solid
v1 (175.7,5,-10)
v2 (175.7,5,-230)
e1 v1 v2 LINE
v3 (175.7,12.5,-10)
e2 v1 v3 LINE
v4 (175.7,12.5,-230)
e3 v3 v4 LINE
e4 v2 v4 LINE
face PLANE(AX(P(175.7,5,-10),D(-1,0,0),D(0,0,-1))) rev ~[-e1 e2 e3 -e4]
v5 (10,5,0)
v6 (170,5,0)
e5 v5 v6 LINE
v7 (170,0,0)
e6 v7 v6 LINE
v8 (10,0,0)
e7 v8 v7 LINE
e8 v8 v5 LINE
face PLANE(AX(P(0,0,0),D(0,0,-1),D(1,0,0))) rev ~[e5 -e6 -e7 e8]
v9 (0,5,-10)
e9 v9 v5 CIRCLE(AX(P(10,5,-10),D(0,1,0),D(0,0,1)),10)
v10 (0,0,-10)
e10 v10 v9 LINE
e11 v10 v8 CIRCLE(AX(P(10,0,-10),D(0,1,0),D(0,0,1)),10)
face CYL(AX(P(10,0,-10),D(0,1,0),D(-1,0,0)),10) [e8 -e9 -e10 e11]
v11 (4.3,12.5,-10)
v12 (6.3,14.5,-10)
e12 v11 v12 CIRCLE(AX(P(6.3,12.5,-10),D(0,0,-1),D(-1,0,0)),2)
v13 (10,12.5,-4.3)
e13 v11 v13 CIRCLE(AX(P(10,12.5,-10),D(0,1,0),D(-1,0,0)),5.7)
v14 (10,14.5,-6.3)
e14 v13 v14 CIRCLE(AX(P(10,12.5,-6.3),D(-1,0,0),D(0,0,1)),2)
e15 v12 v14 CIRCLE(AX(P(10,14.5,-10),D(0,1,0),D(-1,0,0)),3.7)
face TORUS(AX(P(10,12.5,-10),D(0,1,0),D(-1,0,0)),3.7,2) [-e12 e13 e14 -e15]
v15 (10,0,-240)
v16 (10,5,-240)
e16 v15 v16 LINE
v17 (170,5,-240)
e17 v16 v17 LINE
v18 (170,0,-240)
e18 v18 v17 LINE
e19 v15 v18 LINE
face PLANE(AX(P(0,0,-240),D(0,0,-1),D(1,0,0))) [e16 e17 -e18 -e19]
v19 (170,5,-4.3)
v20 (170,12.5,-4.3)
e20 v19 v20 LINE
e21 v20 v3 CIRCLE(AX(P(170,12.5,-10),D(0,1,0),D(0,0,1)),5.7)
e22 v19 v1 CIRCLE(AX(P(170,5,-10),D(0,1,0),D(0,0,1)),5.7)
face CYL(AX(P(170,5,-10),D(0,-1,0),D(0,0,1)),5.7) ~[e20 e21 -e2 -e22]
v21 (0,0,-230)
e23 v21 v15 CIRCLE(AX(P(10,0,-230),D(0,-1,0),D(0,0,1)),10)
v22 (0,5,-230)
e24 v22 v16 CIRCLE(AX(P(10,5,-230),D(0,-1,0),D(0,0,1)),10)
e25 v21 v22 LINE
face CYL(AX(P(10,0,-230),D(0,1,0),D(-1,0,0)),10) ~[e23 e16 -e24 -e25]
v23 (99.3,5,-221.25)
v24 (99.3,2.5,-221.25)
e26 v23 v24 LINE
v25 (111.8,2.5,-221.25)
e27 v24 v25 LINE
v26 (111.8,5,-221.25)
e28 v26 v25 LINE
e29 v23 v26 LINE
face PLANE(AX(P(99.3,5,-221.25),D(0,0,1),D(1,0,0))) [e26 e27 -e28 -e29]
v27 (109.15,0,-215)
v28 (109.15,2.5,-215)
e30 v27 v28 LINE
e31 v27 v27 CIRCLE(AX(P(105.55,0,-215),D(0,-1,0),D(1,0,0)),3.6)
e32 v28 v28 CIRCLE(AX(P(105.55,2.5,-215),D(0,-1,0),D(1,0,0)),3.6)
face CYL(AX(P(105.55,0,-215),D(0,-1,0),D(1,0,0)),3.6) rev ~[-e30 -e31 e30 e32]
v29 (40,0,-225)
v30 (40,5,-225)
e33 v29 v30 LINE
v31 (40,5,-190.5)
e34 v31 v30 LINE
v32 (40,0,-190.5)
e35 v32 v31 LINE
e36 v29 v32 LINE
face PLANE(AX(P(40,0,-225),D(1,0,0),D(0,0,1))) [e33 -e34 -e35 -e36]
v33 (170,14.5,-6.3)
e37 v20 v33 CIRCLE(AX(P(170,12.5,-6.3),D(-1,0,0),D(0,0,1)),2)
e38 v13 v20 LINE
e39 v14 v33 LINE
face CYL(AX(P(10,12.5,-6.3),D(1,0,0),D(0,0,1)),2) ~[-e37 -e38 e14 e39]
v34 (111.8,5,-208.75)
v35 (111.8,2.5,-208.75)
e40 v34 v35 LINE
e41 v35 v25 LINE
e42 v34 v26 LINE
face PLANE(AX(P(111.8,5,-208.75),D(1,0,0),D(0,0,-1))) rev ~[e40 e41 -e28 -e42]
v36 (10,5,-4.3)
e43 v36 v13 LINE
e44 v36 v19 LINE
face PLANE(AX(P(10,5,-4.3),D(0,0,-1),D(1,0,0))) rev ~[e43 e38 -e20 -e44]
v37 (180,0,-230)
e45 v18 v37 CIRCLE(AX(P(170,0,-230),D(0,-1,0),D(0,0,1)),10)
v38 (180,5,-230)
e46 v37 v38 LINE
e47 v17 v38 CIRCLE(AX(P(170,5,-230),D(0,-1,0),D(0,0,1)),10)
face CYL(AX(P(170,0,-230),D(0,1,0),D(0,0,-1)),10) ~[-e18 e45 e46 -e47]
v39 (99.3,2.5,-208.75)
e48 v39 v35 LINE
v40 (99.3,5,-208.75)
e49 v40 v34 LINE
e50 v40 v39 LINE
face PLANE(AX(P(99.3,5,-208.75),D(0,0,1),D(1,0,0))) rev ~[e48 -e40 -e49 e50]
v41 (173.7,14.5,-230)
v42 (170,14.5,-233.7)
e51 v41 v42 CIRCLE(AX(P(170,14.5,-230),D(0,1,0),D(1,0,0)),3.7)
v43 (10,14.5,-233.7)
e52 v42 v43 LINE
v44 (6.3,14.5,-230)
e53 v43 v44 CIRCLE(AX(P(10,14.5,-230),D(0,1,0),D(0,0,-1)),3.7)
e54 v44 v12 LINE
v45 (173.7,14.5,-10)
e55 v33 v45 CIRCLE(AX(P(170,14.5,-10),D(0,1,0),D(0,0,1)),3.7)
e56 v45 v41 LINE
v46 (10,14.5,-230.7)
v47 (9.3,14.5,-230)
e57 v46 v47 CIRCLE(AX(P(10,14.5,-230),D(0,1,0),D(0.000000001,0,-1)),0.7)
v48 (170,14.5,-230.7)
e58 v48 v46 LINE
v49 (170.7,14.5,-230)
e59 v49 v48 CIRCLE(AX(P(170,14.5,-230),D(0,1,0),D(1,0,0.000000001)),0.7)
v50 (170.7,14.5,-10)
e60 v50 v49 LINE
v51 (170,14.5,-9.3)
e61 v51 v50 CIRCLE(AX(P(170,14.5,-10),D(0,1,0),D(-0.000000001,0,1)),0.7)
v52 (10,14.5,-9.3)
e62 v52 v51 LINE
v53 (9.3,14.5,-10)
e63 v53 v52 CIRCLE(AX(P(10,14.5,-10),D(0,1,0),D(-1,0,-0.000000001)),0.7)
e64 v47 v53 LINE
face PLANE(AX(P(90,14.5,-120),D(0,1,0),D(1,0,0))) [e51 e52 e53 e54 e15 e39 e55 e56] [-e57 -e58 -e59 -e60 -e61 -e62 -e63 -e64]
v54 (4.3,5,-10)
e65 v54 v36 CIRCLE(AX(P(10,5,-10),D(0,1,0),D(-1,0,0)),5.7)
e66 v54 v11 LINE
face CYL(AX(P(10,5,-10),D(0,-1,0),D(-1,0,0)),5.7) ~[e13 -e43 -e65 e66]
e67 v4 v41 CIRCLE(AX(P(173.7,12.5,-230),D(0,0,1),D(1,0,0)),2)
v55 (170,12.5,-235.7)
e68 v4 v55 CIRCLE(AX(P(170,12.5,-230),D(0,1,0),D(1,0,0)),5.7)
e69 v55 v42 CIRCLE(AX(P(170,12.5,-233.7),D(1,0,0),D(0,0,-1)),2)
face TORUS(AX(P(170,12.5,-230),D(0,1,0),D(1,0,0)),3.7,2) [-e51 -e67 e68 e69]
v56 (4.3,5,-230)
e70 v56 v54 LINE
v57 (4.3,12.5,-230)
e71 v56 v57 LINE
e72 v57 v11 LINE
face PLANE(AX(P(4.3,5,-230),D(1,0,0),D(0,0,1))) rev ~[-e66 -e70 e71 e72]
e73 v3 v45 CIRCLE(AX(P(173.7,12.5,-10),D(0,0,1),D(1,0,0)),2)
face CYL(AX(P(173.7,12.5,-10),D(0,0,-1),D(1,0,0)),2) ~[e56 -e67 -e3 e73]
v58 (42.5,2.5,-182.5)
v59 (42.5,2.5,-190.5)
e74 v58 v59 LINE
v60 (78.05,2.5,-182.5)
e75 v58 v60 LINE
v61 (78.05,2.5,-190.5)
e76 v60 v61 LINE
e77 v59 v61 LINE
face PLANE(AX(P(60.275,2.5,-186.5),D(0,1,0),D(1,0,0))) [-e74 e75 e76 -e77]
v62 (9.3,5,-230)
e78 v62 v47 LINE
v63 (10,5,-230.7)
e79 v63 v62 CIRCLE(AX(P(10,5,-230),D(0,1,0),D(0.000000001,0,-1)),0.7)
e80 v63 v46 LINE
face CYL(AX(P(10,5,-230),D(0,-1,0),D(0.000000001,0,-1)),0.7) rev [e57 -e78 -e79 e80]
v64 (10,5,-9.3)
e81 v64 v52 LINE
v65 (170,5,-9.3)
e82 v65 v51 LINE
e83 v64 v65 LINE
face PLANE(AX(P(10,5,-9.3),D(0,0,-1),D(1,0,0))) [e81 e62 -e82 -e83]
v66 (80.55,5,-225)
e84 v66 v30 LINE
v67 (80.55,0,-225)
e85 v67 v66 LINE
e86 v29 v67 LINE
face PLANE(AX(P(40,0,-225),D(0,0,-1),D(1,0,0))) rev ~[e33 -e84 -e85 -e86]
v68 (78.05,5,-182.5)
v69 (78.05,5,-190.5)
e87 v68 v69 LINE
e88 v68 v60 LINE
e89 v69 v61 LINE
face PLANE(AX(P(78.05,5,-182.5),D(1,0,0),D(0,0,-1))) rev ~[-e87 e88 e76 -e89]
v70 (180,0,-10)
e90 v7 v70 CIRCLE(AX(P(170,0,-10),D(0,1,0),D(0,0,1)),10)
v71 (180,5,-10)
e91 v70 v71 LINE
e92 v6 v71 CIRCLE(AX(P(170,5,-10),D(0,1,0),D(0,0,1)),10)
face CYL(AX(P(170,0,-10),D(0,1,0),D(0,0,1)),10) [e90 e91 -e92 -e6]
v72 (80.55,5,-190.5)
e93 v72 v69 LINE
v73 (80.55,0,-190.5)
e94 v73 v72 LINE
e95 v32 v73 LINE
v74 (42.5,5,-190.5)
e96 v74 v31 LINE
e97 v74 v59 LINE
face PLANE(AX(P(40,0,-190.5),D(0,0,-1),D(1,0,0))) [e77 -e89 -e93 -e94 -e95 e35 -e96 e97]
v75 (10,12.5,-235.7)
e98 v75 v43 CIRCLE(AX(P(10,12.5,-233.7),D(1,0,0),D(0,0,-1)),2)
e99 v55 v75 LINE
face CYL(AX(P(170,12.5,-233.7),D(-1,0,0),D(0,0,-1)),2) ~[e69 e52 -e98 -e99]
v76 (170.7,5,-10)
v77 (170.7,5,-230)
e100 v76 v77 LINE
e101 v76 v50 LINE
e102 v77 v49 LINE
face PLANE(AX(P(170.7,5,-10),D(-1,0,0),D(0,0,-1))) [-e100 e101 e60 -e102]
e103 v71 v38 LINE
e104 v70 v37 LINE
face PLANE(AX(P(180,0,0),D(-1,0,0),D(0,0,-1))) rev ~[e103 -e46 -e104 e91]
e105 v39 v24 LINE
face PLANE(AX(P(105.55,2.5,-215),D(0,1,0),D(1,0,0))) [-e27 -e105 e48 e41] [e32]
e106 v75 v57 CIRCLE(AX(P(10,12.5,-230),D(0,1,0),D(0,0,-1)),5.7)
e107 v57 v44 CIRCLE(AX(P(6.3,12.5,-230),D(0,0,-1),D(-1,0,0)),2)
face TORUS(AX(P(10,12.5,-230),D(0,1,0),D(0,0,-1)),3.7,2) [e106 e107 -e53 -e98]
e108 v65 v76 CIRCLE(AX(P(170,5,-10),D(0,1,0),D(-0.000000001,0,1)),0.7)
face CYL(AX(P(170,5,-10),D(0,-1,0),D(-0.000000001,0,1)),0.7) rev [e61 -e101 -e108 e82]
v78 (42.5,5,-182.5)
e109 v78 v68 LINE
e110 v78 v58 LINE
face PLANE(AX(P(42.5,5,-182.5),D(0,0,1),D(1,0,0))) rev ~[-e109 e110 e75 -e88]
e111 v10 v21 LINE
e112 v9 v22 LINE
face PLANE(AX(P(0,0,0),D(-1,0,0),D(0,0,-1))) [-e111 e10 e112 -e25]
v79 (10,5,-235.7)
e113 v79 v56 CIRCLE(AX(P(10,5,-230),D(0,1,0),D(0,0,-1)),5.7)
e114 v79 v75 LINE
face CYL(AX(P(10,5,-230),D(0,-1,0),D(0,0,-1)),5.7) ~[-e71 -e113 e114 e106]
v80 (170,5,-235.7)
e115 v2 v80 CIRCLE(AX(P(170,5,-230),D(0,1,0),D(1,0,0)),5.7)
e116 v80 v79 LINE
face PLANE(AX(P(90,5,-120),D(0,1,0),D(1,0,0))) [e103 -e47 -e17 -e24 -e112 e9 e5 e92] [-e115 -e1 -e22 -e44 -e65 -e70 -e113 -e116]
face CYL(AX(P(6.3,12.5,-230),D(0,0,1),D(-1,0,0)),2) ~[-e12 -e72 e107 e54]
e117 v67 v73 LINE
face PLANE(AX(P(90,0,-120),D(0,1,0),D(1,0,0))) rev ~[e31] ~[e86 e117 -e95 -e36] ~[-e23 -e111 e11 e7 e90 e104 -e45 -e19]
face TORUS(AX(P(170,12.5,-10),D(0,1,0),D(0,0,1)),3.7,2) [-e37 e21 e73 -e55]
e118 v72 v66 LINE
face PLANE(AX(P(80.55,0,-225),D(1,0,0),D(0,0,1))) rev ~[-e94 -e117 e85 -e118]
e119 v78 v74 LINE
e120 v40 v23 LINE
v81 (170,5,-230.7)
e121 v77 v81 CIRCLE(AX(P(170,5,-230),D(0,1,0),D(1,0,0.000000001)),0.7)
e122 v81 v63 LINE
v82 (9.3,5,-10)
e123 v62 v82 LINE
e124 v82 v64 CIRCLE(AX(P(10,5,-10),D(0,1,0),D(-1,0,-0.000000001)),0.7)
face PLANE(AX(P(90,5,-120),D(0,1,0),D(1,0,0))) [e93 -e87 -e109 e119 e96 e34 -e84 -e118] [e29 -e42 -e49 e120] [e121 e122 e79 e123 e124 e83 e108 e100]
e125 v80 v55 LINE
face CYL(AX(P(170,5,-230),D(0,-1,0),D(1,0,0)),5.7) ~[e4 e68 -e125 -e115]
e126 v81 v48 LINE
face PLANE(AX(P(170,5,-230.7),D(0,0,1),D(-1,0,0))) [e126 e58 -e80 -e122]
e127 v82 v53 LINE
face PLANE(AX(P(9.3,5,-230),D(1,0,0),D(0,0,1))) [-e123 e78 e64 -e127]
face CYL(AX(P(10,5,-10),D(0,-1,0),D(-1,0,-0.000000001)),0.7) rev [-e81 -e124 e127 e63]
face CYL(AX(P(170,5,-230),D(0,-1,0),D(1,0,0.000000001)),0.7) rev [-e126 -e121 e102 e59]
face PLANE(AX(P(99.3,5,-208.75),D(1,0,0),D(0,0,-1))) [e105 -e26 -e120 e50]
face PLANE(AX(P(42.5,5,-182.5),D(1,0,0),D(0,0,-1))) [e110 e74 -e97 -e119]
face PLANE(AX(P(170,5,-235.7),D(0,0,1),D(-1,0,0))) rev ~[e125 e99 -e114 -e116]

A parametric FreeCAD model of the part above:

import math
import FreeCAD as App
import Part
import Sketcher
from FreeCAD import Vector
Q = App.Units.Quantity


def edges_at(feature, points):
    """Names of the edges that pass closest to the given points."""
    edges = feature.Shape.Edges
    near = lambda p: min(range(len(edges)), key=lambda i: edges[i].distToShape(Part.Vertex(*p))[0])
    return sorted({f"Edge{near(p) + 1}" for p in points})


def add_polygon(sketch, points):
    """Adds a closed chain of lines whose ends are joined by coincident constraints."""
    first, n = sketch.GeometryCount, len(points)
    for a, b in zip(points, points[1:] + points[:1]):
        sketch.addGeometry(Part.LineSegment(App.Vector(*a, 0), App.Vector(*b, 0)), False)
    for i in range(n):
        sketch.addConstraint(Sketcher.Constraint("Coincident", first + i, 2, first + (i + 1) % n, 1))

doc = App.newDocument("Part")
params = doc.addObject("Spreadsheet::Sheet", "Params")
for row, (alias, value) in enumerate([
    ("sketch1_width", "180 mm"),
    ("sketch1_height", "240 mm"),
    ("pad1_length", "5 mm"),
    ("sketch2_diameter", "7.2 mm"),
    ("sketch2_height", "34.5 mm"),
    ("sketch2_width", "40.55 mm"),
    ("sketch3_width", "12.5 mm"),
    ("pocket2_length", "2.5 mm"),
    ("sketch4_height", "8 mm"),
    ("sketch4_width", "35.55 mm"),
    ("pocket3_length", "2.5 mm"),
    ("fillet_radius", "10 mm"),
    ("sketch5_radius", "5.7 mm"),
    ("sketch5_radius2", "0.7 mm"),
    ("sketch5_width", "160 mm"),
    ("sketch5_height", "220 mm"),
    ("pad2_length", "9.5 mm"),
    ("fillet2_radius", "2 mm"),
], start=1):
    params.set(f"A{row}", alias)
    params.set(f"B{row}", "=" + value)
    params.setAlias(f"B{row}", alias)

body = doc.addObject("PartDesign::Body", "Body")

sketch1 = body.newObject("Sketcher::SketchObject", "Sketch")
sketch1.AttachmentSupport = (doc.getObject("XZ_Plane"), [""])
sketch1.MapMode = "FlatFace"
add_polygon(sketch1, [(0, -240), (0, 0), (180, 0), (180, -240)])
sketch1.addConstraint([
    Sketcher.Constraint("Vertical", 0),
    Sketcher.Constraint("Horizontal", 1),
    Sketcher.Constraint("Vertical", 2),
    Sketcher.Constraint("Horizontal", 3),
    Sketcher.Constraint("Coincident", 0, 2, -1, 1),
    Sketcher.Constraint("DistanceX", 1, 1, 1, 2, Q("180 mm")),
    Sketcher.Constraint("DistanceY", 0, 1, 0, 2, Q("240 mm")),
])
sketch1.setExpression("Constraints[9]", "Params.sketch1_width")
sketch1.setExpression("Constraints[10]", "Params.sketch1_height")
pad1 = body.newObject("PartDesign::Pad", "Pad")
pad1.Profile = sketch1
pad1.setExpression("Length", "Params.pad1_length")
pad1.Reversed = True

sketch2 = body.newObject("Sketcher::SketchObject", "Sketch001")
sketch2.AttachmentSupport = (doc.getObject("XZ_Plane"), [""])
sketch2.MapMode = "FlatFace"
sketch2.addGeometry(Part.Circle(Vector(105.55, -215, 0), Vector(0, 0, 1), 3.6), False)
add_polygon(sketch2, [(40, -190.5), (40, -225), (80.55, -225), (80.55, -190.5)])
sketch2.addConstraint([
    Sketcher.Constraint("Vertical", 1),
    Sketcher.Constraint("Horizontal", 2),
    Sketcher.Constraint("Vertical", 3),
    Sketcher.Constraint("Horizontal", 4),
    Sketcher.Constraint("Diameter", 0, Q("7.2 mm")),
    Sketcher.Constraint("DistanceY", 1, 2, 1, 1, Q("34.5 mm")),
    Sketcher.Constraint("DistanceY", 0, 3, -1, 1, Q("215 mm")),
    Sketcher.Constraint("DistanceX", -1, 1, 1, 2, Q("40 mm")),
    Sketcher.Constraint("DistanceY", 1, 2, -1, 1, Q("225 mm")),
    Sketcher.Constraint("DistanceX", 2, 2, 0, 3, Q("25 mm")),
    Sketcher.Constraint("DistanceX", 2, 1, 2, 2, Q("40.55 mm")),
])
sketch2.setExpression("Constraints[8]", "Params.sketch2_diameter")
sketch2.setExpression("Constraints[9]", "Params.sketch2_height")
sketch2.setExpression("Constraints[14]", "Params.sketch2_width")
pocket1 = body.newObject("PartDesign::Pocket", "Pocket")
pocket1.Profile = sketch2
pocket1.Type = "ThroughAll"

sketch3 = body.newObject("Sketcher::SketchObject", "Sketch002")
sketch3.AttachmentSupport = (doc.getObject("XZ_Plane"), [""])
sketch3.MapMode = "FlatFace"
sketch3.AttachmentOffset = App.Placement(Vector(0, 0, -5), App.Rotation())
add_polygon(sketch3, [(99.3, -221.25), (99.3, -208.75), (111.8, -208.75), (111.8, -221.25)])
sketch3.addConstraint([
    Sketcher.Constraint("Vertical", 0),
    Sketcher.Constraint("Horizontal", 1),
    Sketcher.Constraint("Vertical", 2),
    Sketcher.Constraint("Horizontal", 3),
    Sketcher.Constraint("Equal", 3, 0),
    Sketcher.Constraint("DistanceX", 1, 1, 1, 2, Q("12.5 mm")),
    Sketcher.Constraint("DistanceX", -1, 1, 0, 2, Q("99.3 mm")),
    Sketcher.Constraint("DistanceY", 0, 2, -1, 1, Q("208.75 mm")),
])
sketch3.setExpression("Constraints[9]", "Params.sketch3_width")
pocket2 = body.newObject("PartDesign::Pocket", "Pocket001")
pocket2.Profile = sketch3
pocket2.setExpression("Length", "Params.pocket2_length")
pocket2.Reversed = True

sketch4 = body.newObject("Sketcher::SketchObject", "Sketch003")
sketch4.AttachmentSupport = (doc.getObject("XZ_Plane"), [""])
sketch4.MapMode = "FlatFace"
sketch4.AttachmentOffset = App.Placement(Vector(0, 0, -5), App.Rotation())
add_polygon(sketch4, [(42.5, -190.5), (42.5, -182.5), (78.05, -182.5), (78.05, -190.5)])
sketch4.addConstraint([
    Sketcher.Constraint("Vertical", 0),
    Sketcher.Constraint("Horizontal", 1),
    Sketcher.Constraint("Vertical", 2),
    Sketcher.Constraint("Horizontal", 3),
    Sketcher.Constraint("DistanceY", 0, 1, 0, 2, Q("8 mm")),
    Sketcher.Constraint("DistanceX", 1, 1, 1, 2, Q("35.55 mm")),
    Sketcher.Constraint("DistanceX", -1, 1, 0, 2, Q("42.5 mm")),
    Sketcher.Constraint("DistanceY", 0, 2, -1, 1, Q("182.5 mm")),
])
sketch4.setExpression("Constraints[8]", "Params.sketch4_height")
sketch4.setExpression("Constraints[9]", "Params.sketch4_width")
pocket3 = body.newObject("PartDesign::Pocket", "Pocket002")
pocket3.Profile = sketch4
pocket3.setExpression("Length", "Params.pocket3_length")
pocket3.Reversed = True
doc.recompute()

fillet = body.newObject("PartDesign::Fillet", "Fillet")
fillet.Base = (pocket3, edges_at(pocket3, [
    (0, 2.5, -240),
    (180, 2.5, -240),
    (180, 2.5, 0),
    (0, 2.5, 0),
]))
fillet.setExpression("Radius", "Params.fillet_radius")

sketch5 = body.newObject("Sketcher::SketchObject", "Sketch004")
sketch5.AttachmentSupport = (doc.getObject("XZ_Plane"), [""])
sketch5.MapMode = "FlatFace"
sketch5.AttachmentOffset = App.Placement(Vector(0, 0, -5), App.Rotation())
sketch5.addGeometry([
    Part.LineSegment(Vector(175.7, -10, 0), Vector(175.7, -230, 0)),
    Part.ArcOfCircle(Part.Circle(Vector(170, -230, 0), Vector(0, 0, 1), 5.7), math.radians(-90), math.radians(0)),
    Part.LineSegment(Vector(170, -235.7, 0), Vector(10, -235.7, 0)),
    Part.ArcOfCircle(Part.Circle(Vector(10, -230, 0), Vector(0, 0, 1), 5.7), math.radians(180), math.radians(270)),
    Part.LineSegment(Vector(4.3, -230, 0), Vector(4.3, -10, 0)),
    Part.ArcOfCircle(Part.Circle(Vector(10, -10, 0), Vector(0, 0, 1), 5.7), math.radians(90), math.radians(180)),
    Part.LineSegment(Vector(10, -4.3, 0), Vector(170, -4.3, 0)),
    Part.ArcOfCircle(Part.Circle(Vector(170, -10, 0), Vector(0, 0, 1), 5.7), math.radians(0), math.radians(90)),
    Part.LineSegment(Vector(170.7, -230, 0), Vector(170.7, -10, 0)),
    Part.ArcOfCircle(Part.Circle(Vector(170, -10, 0), Vector(0, 0, 1), 0.7), math.radians(0), math.radians(90)),
    Part.LineSegment(Vector(170, -9.3, 0), Vector(10, -9.3, 0)),
    Part.ArcOfCircle(Part.Circle(Vector(10, -10, 0), Vector(0, 0, 1), 0.7), math.radians(90), math.radians(180)),
    Part.LineSegment(Vector(9.3, -10, 0), Vector(9.3, -230, 0)),
    Part.ArcOfCircle(Part.Circle(Vector(10, -230, 0), Vector(0, 0, 1), 0.7), math.radians(180), math.radians(270)),
    Part.LineSegment(Vector(10, -230.7, 0), Vector(170, -230.7, 0)),
    Part.ArcOfCircle(Part.Circle(Vector(170, -230, 0), Vector(0, 0, 1), 0.7), math.radians(-90), math.radians(0)),
], False)
sketch5.addConstraint([
    Sketcher.Constraint("Tangent", 0, 2, 1, 2),
    Sketcher.Constraint("Tangent", 1, 1, 2, 1),
    Sketcher.Constraint("Tangent", 2, 2, 3, 2),
    Sketcher.Constraint("Tangent", 3, 1, 4, 1),
    Sketcher.Constraint("Tangent", 4, 2, 5, 2),
    Sketcher.Constraint("Tangent", 5, 1, 6, 1),
    Sketcher.Constraint("Tangent", 6, 2, 7, 2),
    Sketcher.Constraint("Tangent", 7, 1, 0, 1),
    Sketcher.Constraint("Tangent", 8, 2, 9, 1),
    Sketcher.Constraint("Tangent", 9, 2, 10, 1),
    Sketcher.Constraint("Tangent", 10, 2, 11, 1),
    Sketcher.Constraint("Tangent", 11, 2, 12, 1),
    Sketcher.Constraint("Tangent", 12, 2, 13, 1),
    Sketcher.Constraint("Tangent", 13, 2, 14, 1),
    Sketcher.Constraint("Tangent", 14, 2, 15, 1),
    Sketcher.Constraint("Tangent", 15, 2, 8, 1),
    Sketcher.Constraint("Vertical", 0),
    Sketcher.Constraint("Horizontal", 2),
    Sketcher.Constraint("Vertical", 4),
    Sketcher.Constraint("Horizontal", 6),
    Sketcher.Constraint("Vertical", 8),
    Sketcher.Constraint("Horizontal", 10),
    Sketcher.Constraint("Vertical", 12),
    Sketcher.Constraint("Horizontal", 14),
    Sketcher.Constraint("Coincident", 9, 3, 7, 3),
    Sketcher.Constraint("Coincident", 11, 3, 5, 3),
    Sketcher.Constraint("Coincident", 13, 3, 3, 3),
    Sketcher.Constraint("Equal", 1, 3),
    Sketcher.Constraint("Equal", 3, 5),
    Sketcher.Constraint("Equal", 5, 7),
    Sketcher.Constraint("Equal", 13, 15),
    Sketcher.Constraint("Radius", 1, Q("5.7 mm")),
    Sketcher.Constraint("Radius", 9, Q("0.7 mm")),
    Sketcher.Constraint("DistanceX", 2, 2, 2, 1, Q("160 mm")),
    Sketcher.Constraint("DistanceY", 0, 2, 0, 1, Q("220 mm")),
    Sketcher.Constraint("DistanceX", -1, 1, 1, 3, Q("170 mm")),
    Sketcher.Constraint("DistanceY", 1, 3, -1, 1, Q("230 mm")),
])
sketch5.setExpression("Constraints[31]", "Params.sketch5_radius")
sketch5.setExpression("Constraints[32]", "Params.sketch5_radius2")
sketch5.setExpression("Constraints[33]", "Params.sketch5_width")
sketch5.setExpression("Constraints[34]", "Params.sketch5_height")
pad2 = body.newObject("PartDesign::Pad", "Pad001")
pad2.Profile = sketch5
pad2.setExpression("Length", "Params.pad2_length")
pad2.Reversed = True
doc.recompute()

fillet2 = body.newObject("PartDesign::Fillet", "Fillet001")
fillet2.Base = (pad2, edges_at(pad2, [
    (174.031, 14.5, -5.969),
    (175.7, 14.5, -120),
    (174.031, 14.5, -234.031),
    (90, 14.5, -235.7),
    (5.969, 14.5, -234.031),
    (4.3, 14.5, -120),
    (5.969, 14.5, -5.969),
    (90, 14.5, -4.3),
]))
fillet2.setExpression("Radius", "Params.fillet2_radius")

doc.recompute()
